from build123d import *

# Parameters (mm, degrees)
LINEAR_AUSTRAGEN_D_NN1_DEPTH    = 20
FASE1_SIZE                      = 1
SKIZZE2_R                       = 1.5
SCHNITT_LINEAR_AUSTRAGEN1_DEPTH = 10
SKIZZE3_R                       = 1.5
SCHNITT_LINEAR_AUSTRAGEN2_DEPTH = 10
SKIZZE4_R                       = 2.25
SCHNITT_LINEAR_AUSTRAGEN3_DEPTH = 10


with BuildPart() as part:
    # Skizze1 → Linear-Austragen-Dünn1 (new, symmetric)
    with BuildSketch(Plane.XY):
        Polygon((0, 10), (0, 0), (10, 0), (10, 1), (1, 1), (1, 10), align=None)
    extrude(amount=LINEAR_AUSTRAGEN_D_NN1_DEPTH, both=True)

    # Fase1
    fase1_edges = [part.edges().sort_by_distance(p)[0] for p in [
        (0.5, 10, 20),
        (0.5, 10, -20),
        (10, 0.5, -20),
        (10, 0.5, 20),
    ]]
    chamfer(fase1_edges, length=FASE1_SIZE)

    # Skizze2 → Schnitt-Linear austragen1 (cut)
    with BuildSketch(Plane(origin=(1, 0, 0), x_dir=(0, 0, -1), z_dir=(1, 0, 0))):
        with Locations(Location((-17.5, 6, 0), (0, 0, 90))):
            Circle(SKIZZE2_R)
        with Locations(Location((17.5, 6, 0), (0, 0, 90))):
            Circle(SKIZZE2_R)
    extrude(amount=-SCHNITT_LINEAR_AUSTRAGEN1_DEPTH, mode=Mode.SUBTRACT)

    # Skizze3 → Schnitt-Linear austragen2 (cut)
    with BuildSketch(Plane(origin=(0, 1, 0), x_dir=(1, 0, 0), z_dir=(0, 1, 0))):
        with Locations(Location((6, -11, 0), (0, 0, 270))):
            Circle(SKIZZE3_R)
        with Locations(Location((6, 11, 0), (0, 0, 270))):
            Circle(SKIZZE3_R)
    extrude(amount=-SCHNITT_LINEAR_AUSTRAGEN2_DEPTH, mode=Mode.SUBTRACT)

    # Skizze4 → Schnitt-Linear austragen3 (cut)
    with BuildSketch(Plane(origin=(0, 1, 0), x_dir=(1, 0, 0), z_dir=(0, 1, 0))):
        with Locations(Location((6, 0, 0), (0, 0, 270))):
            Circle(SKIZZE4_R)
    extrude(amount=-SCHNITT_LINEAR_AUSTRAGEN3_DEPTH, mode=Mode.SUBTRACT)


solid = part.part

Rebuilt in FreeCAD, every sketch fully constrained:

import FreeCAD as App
import Part
import Sketcher
from FreeCAD import Vector
Q = App.Units.Quantity


def edges_at(feature, points):
    """Names of the edges that pass closest to the given points."""
    edges = feature.Shape.Edges
    near = lambda p: min(range(len(edges)), key=lambda i: edges[i].distToShape(Part.Vertex(*p))[0])
    return sorted({f"Edge{near(p) + 1}" for p in points})

doc = App.newDocument("Part")
body = doc.addObject("PartDesign::Body", "Body")

sketch1 = body.newObject("Sketcher::SketchObject", "Sketch")
sketch1.AttachmentSupport = (doc.getObject("XY_Plane"), [""])
sketch1.MapMode = "FlatFace"
sketch1.addGeometry(Part.LineSegment(Vector(0, 10, 0), Vector(0, 0, 0)), False)
sketch1.addGeometry(Part.LineSegment(Vector(0, 0, 0), Vector(10, 0, 0)), False)
sketch1.addGeometry(Part.LineSegment(Vector(10, 0, 0), Vector(10, 1, 0)), False)
sketch1.addGeometry(Part.LineSegment(Vector(10, 1, 0), Vector(1, 1, 0)), False)
sketch1.addGeometry(Part.LineSegment(Vector(1, 1, 0), Vector(1, 10, 0)), False)
sketch1.addGeometry(Part.LineSegment(Vector(1, 10, 0), Vector(0, 10, 0)), False)
sketch1.addConstraint(Sketcher.Constraint("Coincident", 0, 2, 1, 1))
sketch1.addConstraint(Sketcher.Constraint("Coincident", 1, 2, 2, 1))
sketch1.addConstraint(Sketcher.Constraint("Coincident", 2, 2, 3, 1))
sketch1.addConstraint(Sketcher.Constraint("Coincident", 3, 2, 4, 1))
sketch1.addConstraint(Sketcher.Constraint("Coincident", 4, 2, 5, 1))
sketch1.addConstraint(Sketcher.Constraint("Coincident", 5, 2, 0, 1))
sketch1.addConstraint(Sketcher.Constraint("Vertical", 0))
sketch1.addConstraint(Sketcher.Constraint("Horizontal", 1))
sketch1.addConstraint(Sketcher.Constraint("Vertical", 2))
sketch1.addConstraint(Sketcher.Constraint("Horizontal", 3))
sketch1.addConstraint(Sketcher.Constraint("Vertical", 4))
sketch1.addConstraint(Sketcher.Constraint("Horizontal", 5))
sketch1.addConstraint(Sketcher.Constraint("Coincident", 0, 2, -1, 1))
sketch1.addConstraint(Sketcher.Constraint("Equal", 1, 0))
sketch1.addConstraint(Sketcher.Constraint("Equal", 5, 2))
sketch1.addConstraint(Sketcher.Constraint("DistanceX", 1, 1, 1, 2, Q("10 mm")))
sketch1.addConstraint(Sketcher.Constraint("DistanceX", 3, 2, 3, 1, Q("9 mm")))
pad1 = body.newObject("PartDesign::Pad", "Pad")
pad1.Profile = sketch1
pad1.Length = 40
pad1.Midplane = True
doc.recompute()

chamfer = body.newObject("PartDesign::Chamfer", "Chamfer")
chamfer.Base = (pad1, edges_at(pad1, [
    (0.5, 10, 20),
    (0.5, 10, -20),
    (10, 0.5, -20),
    (10, 0.5, 20),
]))
chamfer.Size = 1

sketch2 = body.newObject("Sketcher::SketchObject", "Sketch001")
sketch2.AttachmentSupport = (doc.getObject("YZ_Plane"), [""])
sketch2.MapMode = "FlatFace"
sketch2.AttachmentOffset = App.Placement(Vector(0, 0, 1), App.Rotation())
sketch2.addGeometry(Part.Circle(Vector(6, 17.5, 0), Vector(0, 0, 1), 1.5), False)
sketch2.addGeometry(Part.Circle(Vector(6, -17.5, 0), Vector(0, 0, 1), 1.5), False)
sketch2.addConstraint(Sketcher.Constraint("Equal", 0, 1))
sketch2.addConstraint(Sketcher.Constraint("Symmetric", 0, 3, 1, 3, -1))
sketch2.addConstraint(Sketcher.Constraint("Diameter", 0, Q("3 mm")))
sketch2.addConstraint(Sketcher.Constraint("DistanceX", -1, 1, 0, 3, Q("6 mm")))
sketch2.addConstraint(Sketcher.Constraint("DistanceY", 1, 3, 0, 3, Q("35 mm")))
pocket1 = body.newObject("PartDesign::Pocket", "Pocket")
pocket1.Profile = sketch2
pocket1.Length = 10

sketch3 = body.newObject("Sketcher::SketchObject", "Sketch002")
sketch3.AttachmentSupport = (doc.getObject("XZ_Plane"), [""])
sketch3.MapMode = "FlatFace"
sketch3.AttachmentOffset = App.Placement(Vector(0, 0, -1), App.Rotation())
sketch3.addGeometry(Part.Circle(Vector(6, 11, 0), Vector(0, 0, 1), 1.5), False)
sketch3.addGeometry(Part.Circle(Vector(6, -11, 0), Vector(0, 0, 1), 1.5), False)
sketch3.addConstraint(Sketcher.Constraint("Equal", 0, 1))
sketch3.addConstraint(Sketcher.Constraint("Symmetric", 0, 3, 1, 3, -1))
sketch3.addConstraint(Sketcher.Constraint("Diameter", 0, Q("3 mm")))
sketch3.addConstraint(Sketcher.Constraint("DistanceX", -1, 1, 0, 3, Q("6 mm")))
sketch3.addConstraint(Sketcher.Constraint("DistanceY", -1, 1, 0, 3, Q("11 mm")))
pocket2 = body.newObject("PartDesign::Pocket", "Pocket001")
pocket2.Profile = sketch3
pocket2.Length = 10
pocket2.Reversed = True

sketch4 = body.newObject("Sketcher::SketchObject", "Sketch003")
sketch4.AttachmentSupport = (doc.getObject("XZ_Plane"), [""])
sketch4.MapMode = "FlatFace"
sketch4.AttachmentOffset = App.Placement(Vector(0, 0, -1), App.Rotation())
sketch4.addGeometry(Part.Circle(Vector(6, 0, 0), Vector(0, 0, 1), 2.2), False)
sketch4.addConstraint(Sketcher.Constraint("PointOnObject", 0, 3, -1))
sketch4.addConstraint(Sketcher.Constraint("Diameter", 0, Q("4.5 mm")))
sketch4.addConstraint(Sketcher.Constraint("DistanceX", -1, 1, 0, 3, Q("6 mm")))
pocket3 = body.newObject("PartDesign::Pocket", "Pocket002")
pocket3.Profile = sketch4
pocket3.Length = 10
pocket3.Reversed = True

doc.recompute()
